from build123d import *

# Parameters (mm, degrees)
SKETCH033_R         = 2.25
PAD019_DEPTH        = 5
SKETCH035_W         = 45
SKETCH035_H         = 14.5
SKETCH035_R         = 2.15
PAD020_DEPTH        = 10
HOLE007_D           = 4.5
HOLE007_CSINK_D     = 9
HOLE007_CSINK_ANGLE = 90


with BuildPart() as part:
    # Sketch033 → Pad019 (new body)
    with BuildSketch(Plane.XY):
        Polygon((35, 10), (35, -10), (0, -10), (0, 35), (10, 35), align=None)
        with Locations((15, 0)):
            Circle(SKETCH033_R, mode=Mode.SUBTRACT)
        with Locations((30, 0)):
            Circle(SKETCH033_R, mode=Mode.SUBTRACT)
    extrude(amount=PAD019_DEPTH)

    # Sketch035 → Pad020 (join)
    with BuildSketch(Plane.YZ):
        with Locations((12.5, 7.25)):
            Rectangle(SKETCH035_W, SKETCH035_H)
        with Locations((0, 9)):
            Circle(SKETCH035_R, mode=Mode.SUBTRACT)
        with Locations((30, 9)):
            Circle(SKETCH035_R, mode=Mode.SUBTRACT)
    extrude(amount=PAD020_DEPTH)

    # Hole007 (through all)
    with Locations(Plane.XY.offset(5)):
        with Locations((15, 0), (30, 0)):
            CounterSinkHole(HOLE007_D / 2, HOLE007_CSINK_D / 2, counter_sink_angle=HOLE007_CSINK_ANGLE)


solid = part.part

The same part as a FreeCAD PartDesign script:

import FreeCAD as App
import Part
import Sketcher
Q = App.Units.Quantity


def add_polygon(sketch, points):
    """Adds a closed chain of lines whose ends are joined by coincident constraints."""
    first, n = sketch.GeometryCount, len(points)
    for a, b in zip(points, points[1:] + points[:1]):
        sketch.addGeometry(Part.LineSegment(App.Vector(*a, 0), App.Vector(*b, 0)), False)
    for i in range(n):
        sketch.addConstraint(Sketcher.Constraint("Coincident", first + i, 2, first + (i + 1) % n, 1))

doc = App.newDocument("Part")
body = doc.addObject("PartDesign::Body", "Body")

# Sketch on XY plane
sketch1 = body.newObject("Sketcher::SketchObject", "Sketch")
sketch1.AttachmentSupport = (doc.getObject("XY_Plane"), [""])
sketch1.MapMode = "FlatFace"
add_polygon(sketch1, [(35, -10), (35, 10), (10, 35), (0, 35), (0, -10)])  # lines 0-4
sketch1.addGeometry(Part.Circle(App.Vector(30, 0, 0), App.Vector(0, 0, 1), 2.2), False)  # 5
sketch1.addGeometry(Part.Circle(App.Vector(15, 0, 0), App.Vector(0, 0, 1), 2.2), False)  # 6
sketch1.addConstraint(Sketcher.Constraint("Vertical", 0))
sketch1.addConstraint(Sketcher.Constraint("Horizontal", 2))
sketch1.addConstraint(Sketcher.Constraint("Vertical", 3))
sketch1.addConstraint(Sketcher.Constraint("Horizontal", 4))
sketch1.addConstraint(Sketcher.Constraint("Equal", 5, 6))
sketch1.addConstraint(Sketcher.Constraint("PointOnObject", 5, 3, -1))
sketch1.addConstraint(Sketcher.Constraint("PointOnObject", 6, 3, -1))
sketch1.addConstraint(Sketcher.Constraint("PointOnObject", 2, 2, -2))
sketch1.addConstraint(Sketcher.Constraint("Diameter", 5, Q("4.5 mm")))
sketch1.addConstraint(Sketcher.Constraint("DistanceX", 2, 2, 2, 1, Q("10 mm")))
sketch1.addConstraint(Sketcher.Constraint("DistanceX", 4, 1, 4, 2, Q("35 mm")))
sketch1.addConstraint(Sketcher.Constraint("DistanceY", 0, 1, 0, 2, Q("20 mm")))
sketch1.addConstraint(Sketcher.Constraint("DistanceY", 3, 2, 3, 1, Q("45 mm")))
sketch1.addConstraint(Sketcher.Constraint("DistanceX", -1, 1, 5, 3, Q("30 mm")))
sketch1.addConstraint(Sketcher.Constraint("DistanceX", -1, 1, 6, 3, Q("15 mm")))
sketch1.addConstraint(Sketcher.Constraint("DistanceY", -1, 1, 0, 2, Q("10 mm")))
pad1 = body.newObject("PartDesign::Pad", "Pad")
pad1.Profile = sketch1
pad1.Length = 5

# Sketch on YZ plane
sketch2 = body.newObject("Sketcher::SketchObject", "Sketch001")
sketch2.AttachmentSupport = (doc.getObject("YZ_Plane"), [""])
sketch2.MapMode = "FlatFace"
add_polygon(sketch2, [(-10, 14.5), (-10, 0), (35, 0), (35, 14.5)])  # lines 0-3
sketch2.addGeometry(Part.Circle(App.Vector(0, 9, 0), App.Vector(0, 0, 1), 2.1), False)  # 4
sketch2.addGeometry(Part.Circle(App.Vector(30, 9, 0), App.Vector(0, 0, 1), 2.1), False)  # 5
sketch2.addConstraint(Sketcher.Constraint("Vertical", 0))
sketch2.addConstraint(Sketcher.Constraint("Horizontal", 1))
sketch2.addConstraint(Sketcher.Constraint("Vertical", 2))
sketch2.addConstraint(Sketcher.Constraint("Horizontal", 3))
sketch2.addConstraint(Sketcher.Constraint("Equal", 4, 5))
sketch2.addConstraint(Sketcher.Constraint("PointOnObject", 4, 3, -2))
sketch2.addConstraint(Sketcher.Constraint("PointOnObject", 0, 2, -1))
sketch2.addConstraint(Sketcher.Constraint("Horizontal", 4, 3, 5, 3))
sketch2.addConstraint(Sketcher.Constraint("Diameter", 4, Q("4.3 mm")))
sketch2.addConstraint(Sketcher.Constraint("DistanceX", 1, 1, 1, 2, Q("45 mm")))
sketch2.addConstraint(Sketcher.Constraint("DistanceY", 0, 2, 0, 1, Q("14.5 mm")))
sketch2.addConstraint(Sketcher.Constraint("DistanceY", -1, 1, 4, 3, Q("9 mm")))
sketch2.addConstraint(Sketcher.Constraint("DistanceX", -1, 1, 5, 3, Q("30 mm")))
sketch2.addConstraint(Sketcher.Constraint("DistanceX", 0, 2, -1, 1, Q("10 mm")))
pad2 = body.newObject("PartDesign::Pad", "Pad001")
pad2.Profile = sketch2
pad2.Length = 10

# Sketch on XY plane
sketch3 = body.newObject("Sketcher::SketchObject", "Sketch002")
sketch3.AttachmentSupport = (doc.getObject("XY_Plane"), [""])
sketch3.MapMode = "FlatFace"
sketch3.AttachmentOffset = App.Placement(App.Vector(0, 0, 5), App.Rotation())
sketch3.addGeometry(Part.Circle(App.Vector(15, 0, 0), App.Vector(0, 0, 1), 2.2), False)
sketch3.addGeometry(Part.Circle(App.Vector(30, 0, 0), App.Vector(0, 0, 1), 2.2), False)
sketch3.addConstraint(Sketcher.Constraint("Equal", 0, 1))
sketch3.addConstraint(Sketcher.Constraint("PointOnObject", 0, 3, -1))
sketch3.addConstraint(Sketcher.Constraint("PointOnObject", 1, 3, -1))
sketch3.addConstraint(Sketcher.Constraint("Diameter", 0, Q("4.5 mm")))
sketch3.addConstraint(Sketcher.Constraint("DistanceX", -1, 1, 0, 3, Q("15 mm")))
sketch3.addConstraint(Sketcher.Constraint("DistanceX", -1, 1, 1, 3, Q("30 mm")))
doc.recompute()
hole = body.newObject("PartDesign::Hole", "Hole")
hole.Profile = sketch3
hole.ThreadType = "None"
hole.Diameter = 4.5
hole.DepthType = "ThroughAll"
hole.HoleCutType = "Countersink"
hole.HoleCutDiameter = 9
hole.HoleCutCountersinkAngle = 90

doc.recompute()
